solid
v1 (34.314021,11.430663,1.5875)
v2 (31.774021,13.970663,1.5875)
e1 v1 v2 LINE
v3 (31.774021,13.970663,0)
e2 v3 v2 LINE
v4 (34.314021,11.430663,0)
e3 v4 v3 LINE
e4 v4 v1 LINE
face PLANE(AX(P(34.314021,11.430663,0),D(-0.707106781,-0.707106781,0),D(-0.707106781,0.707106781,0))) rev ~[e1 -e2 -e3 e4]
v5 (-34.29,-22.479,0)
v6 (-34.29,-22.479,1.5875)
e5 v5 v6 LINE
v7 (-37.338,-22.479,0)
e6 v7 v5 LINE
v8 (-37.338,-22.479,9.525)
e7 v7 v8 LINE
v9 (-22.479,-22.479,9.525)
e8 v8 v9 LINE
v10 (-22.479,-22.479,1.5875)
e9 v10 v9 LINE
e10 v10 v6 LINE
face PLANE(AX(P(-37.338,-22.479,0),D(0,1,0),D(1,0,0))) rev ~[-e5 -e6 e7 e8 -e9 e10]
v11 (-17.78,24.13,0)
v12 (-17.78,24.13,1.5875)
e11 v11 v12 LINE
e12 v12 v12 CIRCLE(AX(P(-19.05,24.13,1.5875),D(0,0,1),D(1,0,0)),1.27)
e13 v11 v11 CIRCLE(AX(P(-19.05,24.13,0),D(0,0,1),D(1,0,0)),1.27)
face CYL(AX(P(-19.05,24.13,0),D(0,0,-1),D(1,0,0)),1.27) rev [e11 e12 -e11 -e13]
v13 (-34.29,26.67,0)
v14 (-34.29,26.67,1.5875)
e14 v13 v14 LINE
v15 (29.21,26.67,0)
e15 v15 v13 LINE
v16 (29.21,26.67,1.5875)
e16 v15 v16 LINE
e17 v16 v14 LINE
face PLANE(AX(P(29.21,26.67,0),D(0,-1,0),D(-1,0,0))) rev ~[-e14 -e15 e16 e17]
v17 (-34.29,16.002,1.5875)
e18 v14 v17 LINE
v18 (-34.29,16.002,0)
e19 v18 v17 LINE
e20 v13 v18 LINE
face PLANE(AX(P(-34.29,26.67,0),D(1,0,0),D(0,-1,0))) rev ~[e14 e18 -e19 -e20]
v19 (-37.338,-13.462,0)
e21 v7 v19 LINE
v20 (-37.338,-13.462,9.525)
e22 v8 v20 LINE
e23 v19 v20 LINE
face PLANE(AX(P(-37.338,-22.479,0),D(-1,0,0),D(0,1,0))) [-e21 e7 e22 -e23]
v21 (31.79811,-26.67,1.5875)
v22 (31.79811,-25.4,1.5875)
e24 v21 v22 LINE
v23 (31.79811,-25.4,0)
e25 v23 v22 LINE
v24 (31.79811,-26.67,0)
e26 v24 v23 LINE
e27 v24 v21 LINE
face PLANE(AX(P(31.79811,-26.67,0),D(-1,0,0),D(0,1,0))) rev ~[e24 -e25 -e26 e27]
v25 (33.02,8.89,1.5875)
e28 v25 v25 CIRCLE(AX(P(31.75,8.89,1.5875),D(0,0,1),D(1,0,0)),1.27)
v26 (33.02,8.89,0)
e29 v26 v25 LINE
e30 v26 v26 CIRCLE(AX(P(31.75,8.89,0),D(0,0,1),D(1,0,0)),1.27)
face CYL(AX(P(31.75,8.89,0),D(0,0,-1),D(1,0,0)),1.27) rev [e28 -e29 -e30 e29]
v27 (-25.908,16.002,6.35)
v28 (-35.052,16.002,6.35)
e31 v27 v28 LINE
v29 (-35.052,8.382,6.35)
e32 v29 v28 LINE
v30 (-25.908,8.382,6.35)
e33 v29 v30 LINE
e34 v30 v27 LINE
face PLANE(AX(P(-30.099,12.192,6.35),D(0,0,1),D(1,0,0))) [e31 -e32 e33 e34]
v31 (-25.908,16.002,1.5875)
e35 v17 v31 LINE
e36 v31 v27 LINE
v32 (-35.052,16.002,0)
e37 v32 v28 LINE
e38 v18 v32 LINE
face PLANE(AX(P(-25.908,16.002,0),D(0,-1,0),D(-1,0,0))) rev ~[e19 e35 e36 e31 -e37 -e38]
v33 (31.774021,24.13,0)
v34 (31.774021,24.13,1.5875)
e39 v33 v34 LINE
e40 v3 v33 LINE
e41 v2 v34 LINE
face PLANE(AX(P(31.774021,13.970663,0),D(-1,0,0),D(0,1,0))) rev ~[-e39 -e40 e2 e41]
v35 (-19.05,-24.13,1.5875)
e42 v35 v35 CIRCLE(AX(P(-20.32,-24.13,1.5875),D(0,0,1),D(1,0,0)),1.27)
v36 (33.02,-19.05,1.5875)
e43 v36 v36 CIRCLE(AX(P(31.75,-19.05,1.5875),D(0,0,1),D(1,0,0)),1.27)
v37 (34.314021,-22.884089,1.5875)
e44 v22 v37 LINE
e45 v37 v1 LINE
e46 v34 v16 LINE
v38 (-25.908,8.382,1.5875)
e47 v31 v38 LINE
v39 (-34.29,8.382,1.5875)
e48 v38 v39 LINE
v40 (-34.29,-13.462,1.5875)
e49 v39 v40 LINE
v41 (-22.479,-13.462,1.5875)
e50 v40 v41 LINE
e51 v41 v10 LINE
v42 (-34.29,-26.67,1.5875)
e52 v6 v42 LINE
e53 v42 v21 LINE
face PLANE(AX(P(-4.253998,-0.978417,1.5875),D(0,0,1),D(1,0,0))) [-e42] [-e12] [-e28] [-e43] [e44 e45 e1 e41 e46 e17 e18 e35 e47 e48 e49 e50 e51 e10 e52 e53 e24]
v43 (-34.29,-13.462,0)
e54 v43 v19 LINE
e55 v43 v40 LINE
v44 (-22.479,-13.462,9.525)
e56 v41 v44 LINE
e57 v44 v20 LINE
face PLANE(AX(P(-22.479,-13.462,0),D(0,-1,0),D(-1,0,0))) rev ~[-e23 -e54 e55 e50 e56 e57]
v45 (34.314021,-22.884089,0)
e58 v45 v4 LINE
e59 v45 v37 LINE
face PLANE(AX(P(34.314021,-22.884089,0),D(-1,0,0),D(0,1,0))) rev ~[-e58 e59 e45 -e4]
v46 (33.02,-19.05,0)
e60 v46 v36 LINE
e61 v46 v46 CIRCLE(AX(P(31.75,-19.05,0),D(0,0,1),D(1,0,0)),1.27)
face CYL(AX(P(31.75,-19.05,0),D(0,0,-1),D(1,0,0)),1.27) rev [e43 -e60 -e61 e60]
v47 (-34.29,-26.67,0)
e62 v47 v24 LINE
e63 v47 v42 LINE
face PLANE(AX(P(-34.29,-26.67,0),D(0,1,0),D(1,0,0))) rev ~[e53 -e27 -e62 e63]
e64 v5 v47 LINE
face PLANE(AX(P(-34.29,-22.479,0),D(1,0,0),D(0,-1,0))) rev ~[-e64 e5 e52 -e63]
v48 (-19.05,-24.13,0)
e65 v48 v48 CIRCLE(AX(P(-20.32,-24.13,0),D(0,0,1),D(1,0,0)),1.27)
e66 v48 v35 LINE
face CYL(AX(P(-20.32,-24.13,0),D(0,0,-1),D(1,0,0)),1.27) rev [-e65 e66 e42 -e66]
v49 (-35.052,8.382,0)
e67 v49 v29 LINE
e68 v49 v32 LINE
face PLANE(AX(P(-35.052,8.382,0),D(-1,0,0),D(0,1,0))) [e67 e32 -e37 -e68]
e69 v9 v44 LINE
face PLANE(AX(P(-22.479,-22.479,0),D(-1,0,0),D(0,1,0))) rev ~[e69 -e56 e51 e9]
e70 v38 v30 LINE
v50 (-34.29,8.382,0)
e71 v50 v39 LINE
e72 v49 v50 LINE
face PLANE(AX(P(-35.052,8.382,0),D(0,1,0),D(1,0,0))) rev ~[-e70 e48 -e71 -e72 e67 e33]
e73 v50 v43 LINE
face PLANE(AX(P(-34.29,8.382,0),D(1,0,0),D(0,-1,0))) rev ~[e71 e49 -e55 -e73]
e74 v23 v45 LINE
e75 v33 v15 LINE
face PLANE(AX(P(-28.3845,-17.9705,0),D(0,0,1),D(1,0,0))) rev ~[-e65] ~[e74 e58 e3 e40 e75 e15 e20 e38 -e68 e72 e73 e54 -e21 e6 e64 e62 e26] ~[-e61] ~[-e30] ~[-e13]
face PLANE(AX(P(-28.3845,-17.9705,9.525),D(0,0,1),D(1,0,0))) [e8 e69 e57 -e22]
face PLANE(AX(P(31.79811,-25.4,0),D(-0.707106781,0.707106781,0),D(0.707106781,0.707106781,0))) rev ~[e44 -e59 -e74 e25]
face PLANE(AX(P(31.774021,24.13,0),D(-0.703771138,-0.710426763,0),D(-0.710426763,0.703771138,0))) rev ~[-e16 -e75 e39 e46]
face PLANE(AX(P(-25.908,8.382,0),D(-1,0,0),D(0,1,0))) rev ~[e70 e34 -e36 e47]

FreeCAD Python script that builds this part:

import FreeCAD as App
import Part
import Sketcher
Q = App.Units.Quantity

doc = App.newDocument("Part")
body = doc.addObject("PartDesign::Body", "Body")

# Sketch on XY plane
sketch1 = body.newObject("Sketcher::SketchObject", "Sketch")
sketch1.AttachmentSupport = (doc.getObject("XY_Plane"), [""])
sketch1.MapMode = "FlatFace"
sketch1.addGeometry(Part.LineSegment(App.Vector(-34.3, -26.7, 0), App.Vector(31.8, -26.7, 0)), False)
sketch1.addGeometry(Part.LineSegment(App.Vector(31.8, -26.7, 0), App.Vector(31.8, -25.4, 0)), False)
sketch1.addGeometry(Part.LineSegment(App.Vector(31.8, -25.4, 0), App.Vector(34.3, -22.9, 0)), False)
sketch1.addGeometry(Part.LineSegment(App.Vector(34.3, -22.9, 0), App.Vector(34.3, 11.4, 0)), False)
sketch1.addGeometry(Part.LineSegment(App.Vector(34.3, 11.4, 0), App.Vector(31.8, 14, 0)), False)
sketch1.addGeometry(Part.LineSegment(App.Vector(31.8, 14, 0), App.Vector(31.8, 24.1, 0)), False)
sketch1.addGeometry(Part.LineSegment(App.Vector(31.8, 24.1, 0), App.Vector(29.2, 26.7, 0)), False)
sketch1.addGeometry(Part.LineSegment(App.Vector(29.2, 26.7, 0), App.Vector(-34.3, 26.7, 0)), False)
sketch1.addGeometry(Part.LineSegment(App.Vector(-34.3, 26.7, 0), App.Vector(-34.3, 16, 0)), False)
sketch1.addGeometry(Part.LineSegment(App.Vector(-34.3, 16, 0), App.Vector(-25.9, 16, 0)), False)
sketch1.addGeometry(Part.LineSegment(App.Vector(-25.9, 16, 0), App.Vector(-25.9, 8.4, 0)), False)
sketch1.addGeometry(Part.LineSegment(App.Vector(-25.9, 8.4, 0), App.Vector(-34.3, 8.4, 0)), False)
sketch1.addGeometry(Part.LineSegment(App.Vector(-34.3, 8.4, 0), App.Vector(-34.3, -13.5, 0)), False)
sketch1.addGeometry(Part.LineSegment(App.Vector(-34.3, -13.5, 0), App.Vector(-22.5, -13.5, 0)), False)
sketch1.addGeometry(Part.LineSegment(App.Vector(-22.5, -13.5, 0), App.Vector(-22.5, -22.5, 0)), False)
sketch1.addGeometry(Part.LineSegment(App.Vector(-22.5, -22.5, 0), App.Vector(-34.3, -22.5, 0)), False)
sketch1.addGeometry(Part.LineSegment(App.Vector(-34.3, -22.5, 0), App.Vector(-34.3, -26.7, 0)), False)
sketch1.addGeometry(Part.Circle(App.Vector(-20.3, -24.1, 0), App.Vector(0, 0, 1), 1.3), False)
sketch1.addGeometry(Part.Circle(App.Vector(31.8, -19.1, 0), App.Vector(0, 0, 1), 1.3), False)
sketch1.addGeometry(Part.Circle(App.Vector(-19.1, 24.1, 0), App.Vector(0, 0, 1), 1.3), False)
sketch1.addGeometry(Part.Circle(App.Vector(31.8, 8.9, 0), App.Vector(0, 0, 1), 1.3), False)
sketch1.addConstraint(Sketcher.Constraint("Coincident", 0, 2, 1, 1))
sketch1.addConstraint(Sketcher.Constraint("Coincident", 1, 2, 2, 1))
sketch1.addConstraint(Sketcher.Constraint("Coincident", 2, 2, 3, 1))
sketch1.addConstraint(Sketcher.Constraint("Coincident", 3, 2, 4, 1))
sketch1.addConstraint(Sketcher.Constraint("Coincident", 4, 2, 5, 1))
sketch1.addConstraint(Sketcher.Constraint("Coincident", 5, 2, 6, 1))
sketch1.addConstraint(Sketcher.Constraint("Coincident", 6, 2, 7, 1))
sketch1.addConstraint(Sketcher.Constraint("Coincident", 7, 2, 8, 1))
sketch1.addConstraint(Sketcher.Constraint("Coincident", 8, 2, 9, 1))
sketch1.addConstraint(Sketcher.Constraint("Coincident", 9, 2, 10, 1))
sketch1.addConstraint(Sketcher.Constraint("Coincident", 10, 2, 11, 1))
sketch1.addConstraint(Sketcher.Constraint("Coincident", 11, 2, 12, 1))
sketch1.addConstraint(Sketcher.Constraint("Coincident", 12, 2, 13, 1))
sketch1.addConstraint(Sketcher.Constraint("Coincident", 13, 2, 14, 1))
sketch1.addConstraint(Sketcher.Constraint("Coincident", 14, 2, 15, 1))
sketch1.addConstraint(Sketcher.Constraint("Coincident", 15, 2, 16, 1))
sketch1.addConstraint(Sketcher.Constraint("Coincident", 16, 2, 0, 1))
sketch1.addConstraint(Sketcher.Constraint("Horizontal", 0))
sketch1.addConstraint(Sketcher.Constraint("Vertical", 1))
sketch1.addConstraint(Sketcher.Constraint("Vertical", 3))
sketch1.addConstraint(Sketcher.Constraint("Vertical", 5))
sketch1.addConstraint(Sketcher.Constraint("Horizontal", 7))
sketch1.addConstraint(Sketcher.Constraint("Vertical", 8))
sketch1.addConstraint(Sketcher.Constraint("Horizontal", 9))
sketch1.addConstraint(Sketcher.Constraint("Vertical", 10))
sketch1.addConstraint(Sketcher.Constraint("Horizontal", 11))
sketch1.addConstraint(Sketcher.Constraint("Vertical", 12))
sketch1.addConstraint(Sketcher.Constraint("Horizontal", 13))
sketch1.addConstraint(Sketcher.Constraint("Vertical", 14))
sketch1.addConstraint(Sketcher.Constraint("Horizontal", 15))
sketch1.addConstraint(Sketcher.Constraint("Vertical", 16))
sketch1.addConstraint(Sketcher.Constraint("Equal", 17, 18))
sketch1.addConstraint(Sketcher.Constraint("Equal", 18, 19))
sketch1.addConstraint(Sketcher.Constraint("Equal", 19, 20))
sketch1.addConstraint(Sketcher.Constraint("Symmetric", 7, 2, 16, 2, -1))
sketch1.addConstraint(Sketcher.Constraint("Perpendicular", 2, 4))
sketch1.addConstraint(Sketcher.Constraint("Horizontal", 19, 3, 5, 2))
sketch1.addConstraint(Sketcher.Constraint("Vertical", 18, 3, 20, 3))
sketch1.addConstraint(Sketcher.Constraint("Vertical", 8, 2, 11, 2))
sketch1.addConstraint(Sketcher.Constraint("Diameter", 17, Q("0.1 in")))
sketch1.addConstraint(Sketcher.Constraint("DistanceX", 7, 2, 7, 1, Q("2.5 in")))
sketch1.addConstraint(Sketcher.Constraint("DistanceY", 10, 2, 10, 1, Q("0.3 in")))
sketch1.addConstraint(Sketcher.Constraint("DistanceY", 1, 2, -1, 1, Q("1 in")))
sketch1.addConstraint(Sketcher.Constraint("Angle", 2, Q("45 deg")))
sketch1.addConstraint(Sketcher.Constraint("DistanceX", 19, 3, 18, 3, Q("2 in")))
sketch1.addConstraint(Sketcher.Constraint("DistanceY", 0, 2, 19, 3, Q("2 in")))
sketch1.addConstraint(Sketcher.Constraint("DistanceY", 17, 3, 7, 2, Q("2 in")))
sketch1.addConstraint(Sketcher.Constraint("DistanceX", 9, 1, 9, 2, Q("0.33 in")))
sketch1.addConstraint(Sketcher.Constraint("DistanceY", 1, 1, 1, 2, Q("0.05 in")))
sketch1.addConstraint(Sketcher.Constraint("DistanceY", 8, 2, 8, 1, Q("0.42 in")))
sketch1.addConstraint(Sketcher.Constraint("DistanceY", 12, 2, 12, 1, Q("0.86 in")))
sketch1.addConstraint(Sketcher.Constraint("DistanceX", 17, 3, -1, 1, Q("0.8 in")))
sketch1.addConstraint(Sketcher.Constraint("DistanceY", 17, 3, 18, 3, Q("0.2 in")))
sketch1.addConstraint(Sketcher.Constraint("DistanceY", 18, 3, 20, 3, Q("1.1 in")))
sketch1.addConstraint(Sketcher.Constraint("DistanceX", 4, 2, 3, 2, Q("0.1 in")))
sketch1.addConstraint(Sketcher.Constraint("DistanceX", 6, 2, 20, 3, Q("0.1 in")))
sketch1.addConstraint(Sketcher.Constraint("DistanceX", 13, 1, 13, 2, Q("0.465 in")))
sketch1.addConstraint(Sketcher.Constraint("DistanceY", 14, 2, 14, 1, Q("0.355 in")))
sketch1.addConstraint(Sketcher.Constraint("DistanceX", -1, 1, 18, 3, Q("1.25 in")))
sketch1.addConstraint(Sketcher.Constraint("DistanceX", 0, 1, 0, 2, 66.08811))
sketch1.addConstraint(Sketcher.Constraint("DistanceY", 3, 1, 3, 2, 34.314752))
sketch1.addConstraint(Sketcher.Constraint("DistanceY", 5, 1, 5, 2, 10.159337))
pad1 = body.newObject("PartDesign::Pad", "Pad")
pad1.Profile = sketch1
pad1.Length = Q("0.0625 in")

# Sketch on XY plane
sketch2 = body.newObject("Sketcher::SketchObject", "Sketch001")
sketch2.AttachmentSupport = (doc.getObject("XY_Plane"), [""])
sketch2.MapMode = "FlatFace"
sketch2.addGeometry(Part.LineSegment(App.Vector(-26, 8, 0), App.Vector(-26, 16, 0)), False)
sketch2.addGeometry(Part.LineSegment(App.Vector(-26, 16, 0), App.Vector(-35, 16, 0)), False)
sketch2.addGeometry(Part.LineSegment(App.Vector(-35, 16, 0), App.Vector(-35, 8, 0)), False)
sketch2.addGeometry(Part.LineSegment(App.Vector(-35, 8, 0), App.Vector(-26, 8, 0)), False)
sketch2.addConstraint(Sketcher.Constraint("Coincident", 0, 2, 1, 1))
sketch2.addConstraint(Sketcher.Constraint("Coincident", 1, 2, 2, 1))
sketch2.addConstraint(Sketcher.Constraint("Coincident", 2, 2, 3, 1))
sketch2.addConstraint(Sketcher.Constraint("Coincident", 3, 2, 0, 1))
sketch2.addConstraint(Sketcher.Constraint("Vertical", 0))
sketch2.addConstraint(Sketcher.Constraint("Horizontal", 1))
sketch2.addConstraint(Sketcher.Constraint("Vertical", 2))
sketch2.addConstraint(Sketcher.Constraint("Horizontal", 3))
sketch2.addConstraint(Sketcher.Constraint("DistanceY", 0, 1, 0, 2, Q("0.3 in")))
sketch2.addConstraint(Sketcher.Constraint("DistanceX", 1, 2, 1, 1, Q("0.36 in")))
sketch2.addConstraint(Sketcher.Constraint("DistanceX", 0, 2, -1, 1, Q("1.02 in")))
sketch2.addConstraint(Sketcher.Constraint("DistanceY", -1, 1, 0, 2, Q("0.63 in")))
pad2 = body.newObject("PartDesign::Pad", "Pad001")
pad2.Profile = sketch2
pad2.Length = Q("0.25 in")

# Sketch on XY plane
sketch3 = body.newObject("Sketcher::SketchObject", "Sketch002")
sketch3.AttachmentSupport = (doc.getObject("XY_Plane"), [""])
sketch3.MapMode = "FlatFace"
sketch3.addGeometry(Part.LineSegment(App.Vector(-22, -22, 0), App.Vector(-22, -13, 0)), False)
sketch3.addGeometry(Part.LineSegment(App.Vector(-22, -13, 0), App.Vector(-37, -13, 0)), False)
sketch3.addGeometry(Part.LineSegment(App.Vector(-37, -13, 0), App.Vector(-37, -22, 0)), False)
sketch3.addGeometry(Part.LineSegment(App.Vector(-37, -22, 0), App.Vector(-22, -22, 0)), False)
sketch3.addConstraint(Sketcher.Constraint("Coincident", 0, 2, 1, 1))
sketch3.addConstraint(Sketcher.Constraint("Coincident", 1, 2, 2, 1))
sketch3.addConstraint(Sketcher.Constraint("Coincident", 2, 2, 3, 1))
sketch3.addConstraint(Sketcher.Constraint("Coincident", 3, 2, 0, 1))
sketch3.addConstraint(Sketcher.Constraint("Vertical", 0))
sketch3.addConstraint(Sketcher.Constraint("Horizontal", 1))
sketch3.addConstraint(Sketcher.Constraint("Vertical", 2))
sketch3.addConstraint(Sketcher.Constraint("Horizontal", 3))
sketch3.addConstraint(Sketcher.Constraint("DistanceX", 1, 2, 1, 1, Q("0.585 in")))
sketch3.addConstraint(Sketcher.Constraint("DistanceY", 0, 1, 0, 2, Q("0.355 in")))
sketch3.addConstraint(Sketcher.Constraint("DistanceY", 0, 2, -1, 1, Q("0.53 in")))
sketch3.addConstraint(Sketcher.Constraint("DistanceX", 1, 2, -1, 1, Q("1.47 in")))
pad3 = body.newObject("PartDesign::Pad", "Pad002")
pad3.Profile = sketch3
pad3.Length = Q("0.375 in")

doc.recompute()
